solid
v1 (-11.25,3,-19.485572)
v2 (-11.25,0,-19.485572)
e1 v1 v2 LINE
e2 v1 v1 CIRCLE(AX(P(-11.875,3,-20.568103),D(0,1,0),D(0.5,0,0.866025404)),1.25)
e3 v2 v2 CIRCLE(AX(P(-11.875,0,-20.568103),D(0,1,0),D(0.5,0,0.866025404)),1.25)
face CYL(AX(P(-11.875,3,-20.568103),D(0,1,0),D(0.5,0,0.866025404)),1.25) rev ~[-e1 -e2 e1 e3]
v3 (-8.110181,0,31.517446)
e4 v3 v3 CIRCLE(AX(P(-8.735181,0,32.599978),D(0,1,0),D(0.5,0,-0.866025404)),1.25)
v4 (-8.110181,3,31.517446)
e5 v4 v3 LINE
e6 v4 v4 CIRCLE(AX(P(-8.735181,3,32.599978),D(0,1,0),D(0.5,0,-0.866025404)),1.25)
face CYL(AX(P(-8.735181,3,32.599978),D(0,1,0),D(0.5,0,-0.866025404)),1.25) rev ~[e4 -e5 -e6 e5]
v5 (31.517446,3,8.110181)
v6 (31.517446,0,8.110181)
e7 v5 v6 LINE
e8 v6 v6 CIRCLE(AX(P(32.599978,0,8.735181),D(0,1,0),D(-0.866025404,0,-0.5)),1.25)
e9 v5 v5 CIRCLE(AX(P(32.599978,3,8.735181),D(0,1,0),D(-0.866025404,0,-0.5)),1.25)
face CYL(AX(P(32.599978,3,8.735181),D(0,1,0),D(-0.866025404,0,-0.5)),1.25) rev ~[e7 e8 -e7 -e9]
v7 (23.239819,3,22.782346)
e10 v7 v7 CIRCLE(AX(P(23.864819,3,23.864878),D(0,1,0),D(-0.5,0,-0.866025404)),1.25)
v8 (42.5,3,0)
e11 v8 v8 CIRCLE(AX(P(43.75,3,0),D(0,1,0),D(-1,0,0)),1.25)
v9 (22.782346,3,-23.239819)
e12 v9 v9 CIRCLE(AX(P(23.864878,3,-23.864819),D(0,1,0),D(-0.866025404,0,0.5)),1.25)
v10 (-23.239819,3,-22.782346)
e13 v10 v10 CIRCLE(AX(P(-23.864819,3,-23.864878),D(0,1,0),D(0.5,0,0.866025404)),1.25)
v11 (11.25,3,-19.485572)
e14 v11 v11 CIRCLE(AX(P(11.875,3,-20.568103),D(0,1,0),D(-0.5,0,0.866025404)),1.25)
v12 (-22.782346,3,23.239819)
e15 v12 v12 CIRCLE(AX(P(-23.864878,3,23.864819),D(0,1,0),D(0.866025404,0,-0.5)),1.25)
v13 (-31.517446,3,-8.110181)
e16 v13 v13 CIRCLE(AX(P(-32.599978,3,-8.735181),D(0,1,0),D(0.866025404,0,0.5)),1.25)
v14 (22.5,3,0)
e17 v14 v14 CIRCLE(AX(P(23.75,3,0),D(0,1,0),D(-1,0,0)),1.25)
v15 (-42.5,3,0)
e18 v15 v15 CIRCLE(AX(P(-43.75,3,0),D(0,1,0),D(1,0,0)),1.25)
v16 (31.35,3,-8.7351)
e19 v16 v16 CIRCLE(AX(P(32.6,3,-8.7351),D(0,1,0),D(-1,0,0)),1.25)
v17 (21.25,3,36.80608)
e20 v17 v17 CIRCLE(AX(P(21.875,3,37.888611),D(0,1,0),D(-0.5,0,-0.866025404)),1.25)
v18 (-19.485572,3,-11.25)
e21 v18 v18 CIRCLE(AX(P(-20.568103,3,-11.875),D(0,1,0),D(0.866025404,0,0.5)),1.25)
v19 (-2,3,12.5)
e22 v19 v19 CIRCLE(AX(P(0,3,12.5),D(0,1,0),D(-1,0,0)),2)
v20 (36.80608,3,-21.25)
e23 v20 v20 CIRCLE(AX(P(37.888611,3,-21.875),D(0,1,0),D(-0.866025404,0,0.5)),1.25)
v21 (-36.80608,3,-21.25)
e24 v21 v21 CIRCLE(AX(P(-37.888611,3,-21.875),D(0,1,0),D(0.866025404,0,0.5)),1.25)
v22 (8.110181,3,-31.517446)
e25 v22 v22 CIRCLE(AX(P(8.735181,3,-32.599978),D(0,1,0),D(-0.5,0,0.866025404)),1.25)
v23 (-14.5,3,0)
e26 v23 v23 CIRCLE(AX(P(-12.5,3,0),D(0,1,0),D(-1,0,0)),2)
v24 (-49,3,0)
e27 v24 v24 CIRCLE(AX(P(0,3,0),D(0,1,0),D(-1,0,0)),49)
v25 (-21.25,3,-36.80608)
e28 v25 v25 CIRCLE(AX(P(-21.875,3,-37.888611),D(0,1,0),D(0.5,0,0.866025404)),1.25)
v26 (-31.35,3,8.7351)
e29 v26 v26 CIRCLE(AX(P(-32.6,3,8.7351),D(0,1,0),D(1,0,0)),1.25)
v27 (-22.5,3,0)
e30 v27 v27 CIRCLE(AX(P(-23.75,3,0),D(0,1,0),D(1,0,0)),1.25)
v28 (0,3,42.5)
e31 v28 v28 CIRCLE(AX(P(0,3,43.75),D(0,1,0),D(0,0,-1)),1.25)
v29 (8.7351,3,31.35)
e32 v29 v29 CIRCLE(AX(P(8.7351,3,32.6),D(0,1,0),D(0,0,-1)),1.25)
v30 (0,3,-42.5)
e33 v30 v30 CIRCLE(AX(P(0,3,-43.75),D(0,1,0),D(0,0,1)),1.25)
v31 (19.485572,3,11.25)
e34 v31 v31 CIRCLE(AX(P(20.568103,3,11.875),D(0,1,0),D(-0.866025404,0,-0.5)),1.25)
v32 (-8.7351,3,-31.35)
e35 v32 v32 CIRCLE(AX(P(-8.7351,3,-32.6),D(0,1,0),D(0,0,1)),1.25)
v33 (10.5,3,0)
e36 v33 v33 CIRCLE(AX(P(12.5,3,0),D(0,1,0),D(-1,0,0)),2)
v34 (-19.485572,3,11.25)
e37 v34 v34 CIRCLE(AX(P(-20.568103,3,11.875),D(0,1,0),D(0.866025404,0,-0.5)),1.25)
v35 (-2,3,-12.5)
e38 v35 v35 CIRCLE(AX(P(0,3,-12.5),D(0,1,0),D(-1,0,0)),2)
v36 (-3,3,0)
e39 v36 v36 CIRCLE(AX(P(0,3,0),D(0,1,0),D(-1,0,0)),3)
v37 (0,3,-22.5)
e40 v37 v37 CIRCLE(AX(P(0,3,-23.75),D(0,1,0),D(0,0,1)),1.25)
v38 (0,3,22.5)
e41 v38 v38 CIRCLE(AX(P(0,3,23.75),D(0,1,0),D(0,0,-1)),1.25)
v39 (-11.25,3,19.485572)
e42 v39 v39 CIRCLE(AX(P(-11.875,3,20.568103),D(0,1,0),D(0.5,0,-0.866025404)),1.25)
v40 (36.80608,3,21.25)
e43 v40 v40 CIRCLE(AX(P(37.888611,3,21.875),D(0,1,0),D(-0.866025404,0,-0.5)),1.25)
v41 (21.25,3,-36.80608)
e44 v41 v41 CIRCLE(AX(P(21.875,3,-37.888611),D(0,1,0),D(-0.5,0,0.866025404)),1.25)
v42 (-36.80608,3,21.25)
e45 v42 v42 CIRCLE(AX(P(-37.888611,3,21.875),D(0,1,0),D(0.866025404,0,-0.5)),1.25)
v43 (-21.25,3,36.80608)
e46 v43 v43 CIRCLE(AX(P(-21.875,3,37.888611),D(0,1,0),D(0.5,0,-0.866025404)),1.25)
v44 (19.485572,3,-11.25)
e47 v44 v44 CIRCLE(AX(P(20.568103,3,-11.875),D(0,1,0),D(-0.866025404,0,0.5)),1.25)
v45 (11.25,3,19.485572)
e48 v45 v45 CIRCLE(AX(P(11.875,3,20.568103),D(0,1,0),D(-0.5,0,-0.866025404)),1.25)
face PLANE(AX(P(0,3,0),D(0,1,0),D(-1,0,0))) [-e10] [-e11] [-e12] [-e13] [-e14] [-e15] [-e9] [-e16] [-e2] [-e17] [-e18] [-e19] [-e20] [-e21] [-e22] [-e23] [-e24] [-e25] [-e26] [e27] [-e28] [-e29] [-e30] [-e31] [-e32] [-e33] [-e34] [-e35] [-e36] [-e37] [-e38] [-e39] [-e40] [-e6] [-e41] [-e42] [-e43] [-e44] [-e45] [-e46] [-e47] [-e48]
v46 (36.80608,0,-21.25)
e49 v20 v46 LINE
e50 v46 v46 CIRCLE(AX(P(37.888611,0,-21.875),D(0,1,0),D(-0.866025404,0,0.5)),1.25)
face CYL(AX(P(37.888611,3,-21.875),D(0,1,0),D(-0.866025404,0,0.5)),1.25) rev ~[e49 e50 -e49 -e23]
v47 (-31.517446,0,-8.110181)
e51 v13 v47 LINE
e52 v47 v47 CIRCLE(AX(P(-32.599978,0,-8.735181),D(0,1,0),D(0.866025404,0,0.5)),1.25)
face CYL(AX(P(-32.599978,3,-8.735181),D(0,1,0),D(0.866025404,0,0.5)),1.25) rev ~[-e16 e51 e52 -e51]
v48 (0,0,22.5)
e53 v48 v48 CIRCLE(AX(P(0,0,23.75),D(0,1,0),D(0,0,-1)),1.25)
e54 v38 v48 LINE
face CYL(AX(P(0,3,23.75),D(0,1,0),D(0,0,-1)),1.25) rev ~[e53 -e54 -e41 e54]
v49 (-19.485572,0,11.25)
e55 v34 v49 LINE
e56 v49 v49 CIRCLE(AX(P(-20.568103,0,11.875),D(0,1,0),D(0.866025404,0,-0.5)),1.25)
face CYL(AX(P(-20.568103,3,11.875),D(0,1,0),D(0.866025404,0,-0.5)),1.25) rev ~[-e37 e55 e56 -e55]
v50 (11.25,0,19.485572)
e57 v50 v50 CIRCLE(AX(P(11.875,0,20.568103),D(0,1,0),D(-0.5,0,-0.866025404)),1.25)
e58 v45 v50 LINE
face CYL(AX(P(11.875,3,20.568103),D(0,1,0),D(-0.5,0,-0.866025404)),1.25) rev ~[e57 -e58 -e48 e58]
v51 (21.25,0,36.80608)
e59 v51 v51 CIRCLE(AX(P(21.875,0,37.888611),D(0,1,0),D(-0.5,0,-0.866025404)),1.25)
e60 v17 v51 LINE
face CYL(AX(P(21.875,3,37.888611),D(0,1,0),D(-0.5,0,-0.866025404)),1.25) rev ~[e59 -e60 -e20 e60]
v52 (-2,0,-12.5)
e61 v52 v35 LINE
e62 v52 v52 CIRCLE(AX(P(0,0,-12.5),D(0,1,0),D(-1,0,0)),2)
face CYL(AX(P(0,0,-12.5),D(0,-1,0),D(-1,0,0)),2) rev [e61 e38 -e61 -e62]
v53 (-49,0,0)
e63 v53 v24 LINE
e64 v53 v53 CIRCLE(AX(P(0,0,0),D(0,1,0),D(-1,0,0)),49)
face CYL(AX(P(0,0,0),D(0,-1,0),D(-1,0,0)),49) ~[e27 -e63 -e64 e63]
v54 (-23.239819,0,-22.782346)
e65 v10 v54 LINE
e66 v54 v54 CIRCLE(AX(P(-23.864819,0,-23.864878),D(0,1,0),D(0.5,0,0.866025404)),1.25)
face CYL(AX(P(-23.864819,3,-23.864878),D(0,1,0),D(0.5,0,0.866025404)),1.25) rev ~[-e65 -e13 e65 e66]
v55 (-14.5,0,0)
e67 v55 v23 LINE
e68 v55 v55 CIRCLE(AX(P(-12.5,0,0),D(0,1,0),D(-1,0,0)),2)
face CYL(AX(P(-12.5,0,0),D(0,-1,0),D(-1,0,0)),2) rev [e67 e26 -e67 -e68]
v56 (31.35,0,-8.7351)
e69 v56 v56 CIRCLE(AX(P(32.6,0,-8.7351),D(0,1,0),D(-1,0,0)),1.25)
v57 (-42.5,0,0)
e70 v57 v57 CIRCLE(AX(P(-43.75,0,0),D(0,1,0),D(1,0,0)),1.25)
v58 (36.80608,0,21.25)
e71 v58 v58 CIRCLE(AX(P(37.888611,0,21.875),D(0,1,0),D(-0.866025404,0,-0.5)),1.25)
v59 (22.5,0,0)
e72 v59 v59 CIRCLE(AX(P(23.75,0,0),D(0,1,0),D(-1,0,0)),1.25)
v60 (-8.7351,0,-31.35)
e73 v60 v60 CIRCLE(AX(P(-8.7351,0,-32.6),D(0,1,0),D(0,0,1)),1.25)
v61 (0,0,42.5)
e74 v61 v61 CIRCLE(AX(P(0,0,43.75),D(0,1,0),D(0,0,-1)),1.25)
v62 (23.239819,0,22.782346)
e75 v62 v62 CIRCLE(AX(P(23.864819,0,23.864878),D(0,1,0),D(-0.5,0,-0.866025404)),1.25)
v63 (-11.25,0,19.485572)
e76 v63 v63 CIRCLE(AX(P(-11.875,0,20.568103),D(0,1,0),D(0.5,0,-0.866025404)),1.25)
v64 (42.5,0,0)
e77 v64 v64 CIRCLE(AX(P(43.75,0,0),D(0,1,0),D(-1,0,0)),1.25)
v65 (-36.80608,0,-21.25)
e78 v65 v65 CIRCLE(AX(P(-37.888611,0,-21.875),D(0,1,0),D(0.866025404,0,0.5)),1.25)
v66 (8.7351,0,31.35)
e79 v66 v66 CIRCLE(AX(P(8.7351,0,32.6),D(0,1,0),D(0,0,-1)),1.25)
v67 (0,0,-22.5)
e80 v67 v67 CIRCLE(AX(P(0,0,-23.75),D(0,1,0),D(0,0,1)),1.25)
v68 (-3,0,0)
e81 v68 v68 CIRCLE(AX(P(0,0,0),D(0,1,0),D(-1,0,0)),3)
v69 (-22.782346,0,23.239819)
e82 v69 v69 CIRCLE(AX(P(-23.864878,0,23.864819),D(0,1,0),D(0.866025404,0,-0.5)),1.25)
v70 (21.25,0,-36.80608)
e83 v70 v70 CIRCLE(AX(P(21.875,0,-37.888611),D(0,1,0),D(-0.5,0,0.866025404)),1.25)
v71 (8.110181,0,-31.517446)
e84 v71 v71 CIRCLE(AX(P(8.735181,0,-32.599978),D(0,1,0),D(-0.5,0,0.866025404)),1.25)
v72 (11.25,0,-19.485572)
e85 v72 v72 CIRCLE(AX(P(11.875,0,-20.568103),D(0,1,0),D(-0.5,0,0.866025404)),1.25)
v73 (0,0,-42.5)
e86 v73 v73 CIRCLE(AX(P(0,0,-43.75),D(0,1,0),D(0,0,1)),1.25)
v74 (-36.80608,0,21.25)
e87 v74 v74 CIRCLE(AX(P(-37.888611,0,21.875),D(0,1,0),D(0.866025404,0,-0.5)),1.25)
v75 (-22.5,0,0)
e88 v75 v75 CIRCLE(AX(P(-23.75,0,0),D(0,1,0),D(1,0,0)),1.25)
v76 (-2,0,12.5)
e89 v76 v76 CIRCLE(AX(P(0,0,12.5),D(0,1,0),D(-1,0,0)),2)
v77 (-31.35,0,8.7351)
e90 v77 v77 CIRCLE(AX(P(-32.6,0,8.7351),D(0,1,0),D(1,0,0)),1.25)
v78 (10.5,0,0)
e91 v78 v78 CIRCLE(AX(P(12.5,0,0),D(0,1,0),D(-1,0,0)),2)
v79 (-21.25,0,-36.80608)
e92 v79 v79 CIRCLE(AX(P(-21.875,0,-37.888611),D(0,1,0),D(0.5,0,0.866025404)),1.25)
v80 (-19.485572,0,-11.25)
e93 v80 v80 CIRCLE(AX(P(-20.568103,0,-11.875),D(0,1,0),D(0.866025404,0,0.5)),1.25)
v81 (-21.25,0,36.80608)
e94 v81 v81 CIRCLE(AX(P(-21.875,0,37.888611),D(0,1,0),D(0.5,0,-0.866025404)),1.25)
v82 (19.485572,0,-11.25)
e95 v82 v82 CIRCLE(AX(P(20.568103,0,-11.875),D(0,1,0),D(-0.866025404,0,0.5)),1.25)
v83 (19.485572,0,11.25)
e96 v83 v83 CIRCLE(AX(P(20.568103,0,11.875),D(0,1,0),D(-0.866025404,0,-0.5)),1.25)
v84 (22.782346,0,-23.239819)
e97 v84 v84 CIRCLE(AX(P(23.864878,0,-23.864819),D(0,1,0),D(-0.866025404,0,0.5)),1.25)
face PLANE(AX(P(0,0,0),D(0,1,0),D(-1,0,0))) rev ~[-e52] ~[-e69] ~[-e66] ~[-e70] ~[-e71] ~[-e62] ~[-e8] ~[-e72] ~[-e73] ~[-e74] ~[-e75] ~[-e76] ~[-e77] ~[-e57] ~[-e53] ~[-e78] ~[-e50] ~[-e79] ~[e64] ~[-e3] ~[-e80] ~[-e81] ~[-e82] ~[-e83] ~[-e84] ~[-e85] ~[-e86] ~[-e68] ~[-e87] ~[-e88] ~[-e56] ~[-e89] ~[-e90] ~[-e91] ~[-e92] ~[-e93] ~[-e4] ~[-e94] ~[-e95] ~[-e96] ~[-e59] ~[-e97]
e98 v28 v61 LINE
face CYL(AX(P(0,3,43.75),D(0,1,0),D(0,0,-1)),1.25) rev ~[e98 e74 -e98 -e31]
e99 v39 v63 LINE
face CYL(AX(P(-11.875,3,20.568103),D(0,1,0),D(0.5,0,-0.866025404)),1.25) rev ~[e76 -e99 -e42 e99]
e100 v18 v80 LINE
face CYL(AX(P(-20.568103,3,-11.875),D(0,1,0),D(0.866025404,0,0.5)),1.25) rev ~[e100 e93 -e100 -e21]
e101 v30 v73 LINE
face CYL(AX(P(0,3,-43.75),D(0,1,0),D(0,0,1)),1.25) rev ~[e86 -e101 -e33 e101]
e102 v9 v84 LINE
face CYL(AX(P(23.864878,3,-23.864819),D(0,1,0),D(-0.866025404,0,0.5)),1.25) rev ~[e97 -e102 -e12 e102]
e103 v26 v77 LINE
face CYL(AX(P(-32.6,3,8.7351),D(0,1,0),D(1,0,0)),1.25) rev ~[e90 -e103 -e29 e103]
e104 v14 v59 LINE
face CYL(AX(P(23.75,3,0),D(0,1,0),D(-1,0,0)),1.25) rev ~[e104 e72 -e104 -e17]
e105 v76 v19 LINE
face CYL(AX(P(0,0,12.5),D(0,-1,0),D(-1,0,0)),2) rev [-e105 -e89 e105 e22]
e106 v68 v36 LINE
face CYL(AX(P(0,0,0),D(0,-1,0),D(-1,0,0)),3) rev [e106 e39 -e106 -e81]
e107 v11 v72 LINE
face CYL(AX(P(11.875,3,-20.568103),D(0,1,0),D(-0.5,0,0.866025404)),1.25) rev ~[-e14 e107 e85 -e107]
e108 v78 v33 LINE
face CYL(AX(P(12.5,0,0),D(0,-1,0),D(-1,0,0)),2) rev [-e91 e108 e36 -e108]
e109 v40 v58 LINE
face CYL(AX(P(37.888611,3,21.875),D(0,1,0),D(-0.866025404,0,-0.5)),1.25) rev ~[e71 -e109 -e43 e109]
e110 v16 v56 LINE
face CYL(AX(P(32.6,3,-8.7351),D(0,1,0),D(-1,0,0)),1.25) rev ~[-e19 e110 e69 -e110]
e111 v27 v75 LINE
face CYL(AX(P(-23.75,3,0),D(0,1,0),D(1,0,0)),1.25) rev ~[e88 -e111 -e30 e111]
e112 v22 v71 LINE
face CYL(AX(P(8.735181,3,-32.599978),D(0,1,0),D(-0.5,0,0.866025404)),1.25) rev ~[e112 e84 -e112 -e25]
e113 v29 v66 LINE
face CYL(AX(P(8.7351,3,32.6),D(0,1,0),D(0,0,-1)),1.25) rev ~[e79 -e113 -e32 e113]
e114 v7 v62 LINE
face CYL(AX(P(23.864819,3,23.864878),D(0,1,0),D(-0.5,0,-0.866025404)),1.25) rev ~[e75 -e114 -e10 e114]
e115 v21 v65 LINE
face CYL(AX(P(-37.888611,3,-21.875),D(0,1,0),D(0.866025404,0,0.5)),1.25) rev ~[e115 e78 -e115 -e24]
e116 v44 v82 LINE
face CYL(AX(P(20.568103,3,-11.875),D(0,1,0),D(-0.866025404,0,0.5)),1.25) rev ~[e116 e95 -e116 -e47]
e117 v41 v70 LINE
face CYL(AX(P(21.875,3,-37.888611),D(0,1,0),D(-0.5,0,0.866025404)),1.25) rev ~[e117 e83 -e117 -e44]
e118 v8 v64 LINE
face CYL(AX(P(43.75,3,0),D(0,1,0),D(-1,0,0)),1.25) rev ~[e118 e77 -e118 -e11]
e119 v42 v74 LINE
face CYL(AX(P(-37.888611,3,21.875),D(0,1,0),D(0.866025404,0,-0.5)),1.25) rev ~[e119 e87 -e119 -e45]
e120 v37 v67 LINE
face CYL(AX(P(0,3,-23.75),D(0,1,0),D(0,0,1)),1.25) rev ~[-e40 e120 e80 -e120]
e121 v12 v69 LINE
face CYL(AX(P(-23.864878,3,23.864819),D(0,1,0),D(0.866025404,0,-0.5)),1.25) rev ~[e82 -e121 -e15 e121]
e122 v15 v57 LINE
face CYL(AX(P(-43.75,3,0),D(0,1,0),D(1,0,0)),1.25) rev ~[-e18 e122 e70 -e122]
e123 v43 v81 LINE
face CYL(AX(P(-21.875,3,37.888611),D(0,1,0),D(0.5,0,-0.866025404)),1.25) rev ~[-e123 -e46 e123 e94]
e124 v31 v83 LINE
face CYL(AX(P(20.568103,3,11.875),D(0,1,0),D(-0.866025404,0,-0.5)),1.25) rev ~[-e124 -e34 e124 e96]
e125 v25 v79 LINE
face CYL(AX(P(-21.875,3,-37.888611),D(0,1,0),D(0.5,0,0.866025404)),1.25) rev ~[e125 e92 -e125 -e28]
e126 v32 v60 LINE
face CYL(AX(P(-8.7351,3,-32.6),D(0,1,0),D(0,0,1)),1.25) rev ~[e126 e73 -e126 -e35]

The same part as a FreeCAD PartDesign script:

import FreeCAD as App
import Part
import Sketcher

V = App.Vector
Q = App.Units.Quantity

doc = App.newDocument("Part")
body = doc.addObject("PartDesign::Body", "Body")

# Sketch on XZ plane
sketch1 = doc.addObject("Sketcher::SketchObject", "Sketch")
body.addObject(sketch1)
sketch1.AttachmentSupport = (doc.XZ_Plane, [""])
sketch1.MapMode = "FlatFace"
sketch1.addGeometry(Part.Circle(V(0, 0, 0), V(0, 0, 1), 49), False)
sketch1.addGeometry(Part.Circle(V(0, -12.5, 0), V(0, 0, 1), 2), False)
sketch1.addGeometry(Part.Circle(V(12.5, 0, 0), V(0, 0, 1), 2), False)
sketch1.addGeometry(Part.Circle(V(0, 0, 0), V(0, 0, 1), 3), False)
sketch1.addGeometry(Part.Circle(V(-12.5, 0, 0), V(0, 0, 1), 2), False)
sketch1.addGeometry(Part.Circle(V(0, 12.5, 0), V(0, 0, 1), 2), False)
sketch1.addConstraint(Sketcher.Constraint("Coincident", 0, 3, -1, 1))
sketch1.addConstraint(Sketcher.Constraint("Coincident", 3, 3, -1, 1))
sketch1.addConstraint(Sketcher.Constraint("Equal", 1, 2))
sketch1.addConstraint(Sketcher.Constraint("Equal", 2, 4))
sketch1.addConstraint(Sketcher.Constraint("Equal", 4, 5))
sketch1.addConstraint(Sketcher.Constraint("Symmetric", 2, 3, 4, 3, -1, 1))
sketch1.addConstraint(Sketcher.Constraint("Symmetric", 1, 3, 5, 3, -1, 1))
sketch1.addConstraint(Sketcher.Constraint("PointOnObject", 1, 3, -2))
sketch1.addConstraint(Sketcher.Constraint("PointOnObject", 2, 3, -1))
sketch1.addConstraint(Sketcher.Constraint("Diameter", 0, Q("98 mm")))
sketch1.addConstraint(Sketcher.Constraint("Diameter", 1, Q("4 mm")))
sketch1.addConstraint(Sketcher.Constraint("Diameter", 3, Q("6 mm")))
sketch1.addConstraint(Sketcher.Constraint("DistanceY", 1, 3, -1, 1, Q("12.5 mm")))
sketch1.addConstraint(Sketcher.Constraint("DistanceX", -1, 1, 2, 3, Q("12.5 mm")))
pad1 = doc.addObject("PartDesign::Pad", "Pad")
body.addObject(pad1)
pad1.Profile = sketch1
pad1.Length = 3
pad1.Reversed = True

# Sketch on XZ plane
sketch2 = doc.addObject("Sketcher::SketchObject", "Sketch001")
body.addObject(sketch2)
sketch2.AttachmentSupport = (doc.XZ_Plane, [""])
sketch2.MapMode = "FlatFace"
sketch2.AttachmentOffset = App.Placement(V(0, 0, -3), App.Rotation())
sketch2.addGeometry(Part.Circle(V(-43.8, 0, 0), V(0, 0, 1), 1.2), False)
sketch2.addGeometry(Part.Circle(V(-23.8, 0, 0), V(0, 0, 1), 1.2), False)
sketch2.addGeometry(Part.Circle(V(-32.6, 8.7, 0), V(0, 0, 1), 1.2), False)
sketch2.addConstraint(Sketcher.Constraint("Equal", 0, 1))
sketch2.addConstraint(Sketcher.Constraint("Equal", 1, 2))
sketch2.addConstraint(Sketcher.Constraint("PointOnObject", 0, 3, -1))
sketch2.addConstraint(Sketcher.Constraint("PointOnObject", 1, 3, -1))
sketch2.addConstraint(Sketcher.Constraint("Diameter", 0, Q("2.5 mm")))
sketch2.addConstraint(Sketcher.Constraint("DistanceX", 0, 3, 1, 3, Q("20 mm")))
sketch2.addConstraint(Sketcher.Constraint("DistanceX", 2, 3, -1, 1, Q("32.6 mm")))
sketch2.addConstraint(Sketcher.Constraint("DistanceX", 0, 3, -1, 1, Q("43.75 mm")))
sketch2.addConstraint(Sketcher.Constraint("DistanceY", -1, 1, 2, 3, Q("8.735 mm")))
pocket1 = doc.addObject("PartDesign::Pocket", "Pocket")
body.addObject(pocket1)
pocket1.Profile = sketch2
pocket1.Type = "ThroughAll"
pocket1.Reversed = True
doc.recompute()

polarpattern = doc.addObject("PartDesign::PolarPattern", "PolarPattern")
body.addObject(polarpattern)
polarpattern.Originals = [pocket1]
polarpattern.Axis = (doc.Y_Axis, [""])
polarpattern.Angle = 360
polarpattern.Occurrences = 12
body.Tip = polarpattern

doc.recompute()
